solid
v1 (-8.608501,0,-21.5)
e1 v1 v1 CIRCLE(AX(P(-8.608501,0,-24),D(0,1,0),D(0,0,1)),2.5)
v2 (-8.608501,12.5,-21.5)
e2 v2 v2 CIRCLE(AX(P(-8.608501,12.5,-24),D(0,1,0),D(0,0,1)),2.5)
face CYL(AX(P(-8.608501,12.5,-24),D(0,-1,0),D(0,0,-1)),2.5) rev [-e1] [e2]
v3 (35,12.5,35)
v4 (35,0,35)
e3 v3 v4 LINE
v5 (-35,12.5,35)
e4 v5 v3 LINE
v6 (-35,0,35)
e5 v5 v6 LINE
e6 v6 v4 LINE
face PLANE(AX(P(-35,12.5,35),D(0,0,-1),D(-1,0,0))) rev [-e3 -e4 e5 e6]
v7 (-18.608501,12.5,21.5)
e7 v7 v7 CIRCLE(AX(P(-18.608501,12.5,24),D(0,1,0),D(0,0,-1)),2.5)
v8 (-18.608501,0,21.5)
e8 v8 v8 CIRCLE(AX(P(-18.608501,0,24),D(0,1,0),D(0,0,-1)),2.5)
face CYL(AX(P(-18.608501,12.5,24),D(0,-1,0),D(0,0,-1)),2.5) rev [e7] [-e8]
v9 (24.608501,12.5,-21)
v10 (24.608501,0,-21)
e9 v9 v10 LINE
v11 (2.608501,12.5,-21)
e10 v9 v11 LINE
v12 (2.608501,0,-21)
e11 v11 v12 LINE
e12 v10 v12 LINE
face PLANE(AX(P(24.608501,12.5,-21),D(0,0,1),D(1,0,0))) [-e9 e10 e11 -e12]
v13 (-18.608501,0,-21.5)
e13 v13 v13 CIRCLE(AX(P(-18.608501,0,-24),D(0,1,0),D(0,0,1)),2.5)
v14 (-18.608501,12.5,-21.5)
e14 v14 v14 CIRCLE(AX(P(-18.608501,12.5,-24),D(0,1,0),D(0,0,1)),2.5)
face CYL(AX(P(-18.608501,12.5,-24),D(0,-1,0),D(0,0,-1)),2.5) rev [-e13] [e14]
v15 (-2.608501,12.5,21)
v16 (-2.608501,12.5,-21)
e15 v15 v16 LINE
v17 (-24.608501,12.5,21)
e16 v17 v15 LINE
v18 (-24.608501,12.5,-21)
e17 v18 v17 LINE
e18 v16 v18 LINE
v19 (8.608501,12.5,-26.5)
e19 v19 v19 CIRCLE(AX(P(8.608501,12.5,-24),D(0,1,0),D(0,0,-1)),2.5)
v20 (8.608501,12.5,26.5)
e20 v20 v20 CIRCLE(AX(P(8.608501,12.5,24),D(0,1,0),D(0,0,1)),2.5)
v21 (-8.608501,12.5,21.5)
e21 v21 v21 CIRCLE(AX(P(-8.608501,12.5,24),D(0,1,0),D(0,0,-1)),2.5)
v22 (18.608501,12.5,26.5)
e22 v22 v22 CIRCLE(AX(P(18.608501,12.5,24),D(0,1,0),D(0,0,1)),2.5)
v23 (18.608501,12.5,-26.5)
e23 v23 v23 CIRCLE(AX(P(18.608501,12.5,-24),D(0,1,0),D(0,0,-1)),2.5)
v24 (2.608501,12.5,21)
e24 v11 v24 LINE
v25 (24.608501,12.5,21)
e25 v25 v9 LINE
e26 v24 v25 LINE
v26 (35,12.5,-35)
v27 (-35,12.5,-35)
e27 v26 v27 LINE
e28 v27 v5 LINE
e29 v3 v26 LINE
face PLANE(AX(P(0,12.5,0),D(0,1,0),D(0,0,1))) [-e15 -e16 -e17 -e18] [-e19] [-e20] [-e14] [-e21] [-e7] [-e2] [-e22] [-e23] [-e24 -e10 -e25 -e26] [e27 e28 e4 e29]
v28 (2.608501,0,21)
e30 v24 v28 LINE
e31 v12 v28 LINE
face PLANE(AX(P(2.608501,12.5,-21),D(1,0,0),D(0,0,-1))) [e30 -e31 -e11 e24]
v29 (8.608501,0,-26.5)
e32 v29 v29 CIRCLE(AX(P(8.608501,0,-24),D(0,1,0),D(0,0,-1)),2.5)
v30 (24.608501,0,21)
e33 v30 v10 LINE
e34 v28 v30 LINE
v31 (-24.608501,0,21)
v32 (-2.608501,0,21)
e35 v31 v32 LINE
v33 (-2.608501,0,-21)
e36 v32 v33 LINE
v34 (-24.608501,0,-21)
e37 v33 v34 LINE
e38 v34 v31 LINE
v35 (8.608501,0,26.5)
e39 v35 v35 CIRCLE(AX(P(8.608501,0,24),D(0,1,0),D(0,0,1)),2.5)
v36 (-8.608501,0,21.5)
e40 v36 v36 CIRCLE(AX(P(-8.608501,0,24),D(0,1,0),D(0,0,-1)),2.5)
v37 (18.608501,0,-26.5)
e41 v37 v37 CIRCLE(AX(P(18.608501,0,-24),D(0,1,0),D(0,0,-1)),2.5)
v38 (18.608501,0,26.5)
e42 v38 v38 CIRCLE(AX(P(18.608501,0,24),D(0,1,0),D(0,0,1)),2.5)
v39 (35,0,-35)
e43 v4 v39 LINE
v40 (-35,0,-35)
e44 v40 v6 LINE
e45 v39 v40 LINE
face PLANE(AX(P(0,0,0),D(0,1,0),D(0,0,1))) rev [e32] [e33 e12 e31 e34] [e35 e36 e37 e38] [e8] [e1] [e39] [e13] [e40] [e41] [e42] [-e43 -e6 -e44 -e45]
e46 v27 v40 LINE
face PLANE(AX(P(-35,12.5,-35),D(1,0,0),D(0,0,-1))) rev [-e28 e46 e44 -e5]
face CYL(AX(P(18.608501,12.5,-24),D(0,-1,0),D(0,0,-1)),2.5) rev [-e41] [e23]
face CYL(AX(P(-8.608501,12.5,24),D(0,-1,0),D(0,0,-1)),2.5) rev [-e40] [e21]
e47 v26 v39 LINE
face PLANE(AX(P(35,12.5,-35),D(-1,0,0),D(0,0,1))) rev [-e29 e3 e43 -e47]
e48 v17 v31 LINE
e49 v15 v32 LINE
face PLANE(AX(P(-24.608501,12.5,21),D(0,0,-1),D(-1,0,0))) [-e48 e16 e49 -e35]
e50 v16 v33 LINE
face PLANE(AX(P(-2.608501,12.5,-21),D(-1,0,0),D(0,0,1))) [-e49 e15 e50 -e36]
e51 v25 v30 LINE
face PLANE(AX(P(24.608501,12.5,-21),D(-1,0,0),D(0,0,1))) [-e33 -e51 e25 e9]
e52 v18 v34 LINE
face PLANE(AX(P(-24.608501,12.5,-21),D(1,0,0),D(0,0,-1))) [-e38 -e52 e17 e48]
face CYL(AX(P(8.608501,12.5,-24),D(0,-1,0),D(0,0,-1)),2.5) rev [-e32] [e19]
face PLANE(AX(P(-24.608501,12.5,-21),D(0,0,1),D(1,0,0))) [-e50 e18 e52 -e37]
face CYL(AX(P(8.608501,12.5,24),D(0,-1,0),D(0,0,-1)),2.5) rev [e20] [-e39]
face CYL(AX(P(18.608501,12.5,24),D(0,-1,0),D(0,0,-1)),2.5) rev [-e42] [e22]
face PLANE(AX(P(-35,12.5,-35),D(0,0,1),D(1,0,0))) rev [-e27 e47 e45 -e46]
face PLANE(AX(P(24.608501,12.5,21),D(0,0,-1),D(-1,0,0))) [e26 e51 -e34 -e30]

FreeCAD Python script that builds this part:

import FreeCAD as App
import Part
import Sketcher


def add_polygon(sketch, points):
    """Adds a closed chain of lines whose ends are joined by coincident constraints."""
    first, n = sketch.GeometryCount, len(points)
    for a, b in zip(points, points[1:] + points[:1]):
        sketch.addGeometry(Part.LineSegment(App.Vector(*a, 0), App.Vector(*b, 0)), False)
    for i in range(n):
        sketch.addConstraint(Sketcher.Constraint("Coincident", first + i, 2, first + (i + 1) % n, 1))

doc = App.newDocument("Part")
body = doc.addObject("PartDesign::Body", "Body")

sketch1 = doc.addObject("Sketcher::SketchObject", "Sketch")
body.addObject(sketch1)
sketch1.AttachmentSupport = (doc.XZ_Plane, [""])
sketch1.MapMode = "FlatFace"
add_polygon(sketch1, [(-35, -35), (-35, 35), (35, 35), (35, -35)])
sketch1.addGeometry(Part.Circle(App.Vector(-18.608501, 24, 0), App.Vector(0, 0, 1), 2.5), False)
sketch1.addGeometry(Part.Circle(App.Vector(-8.608501, 24, 0), App.Vector(0, 0, 1), 2.5), False)
sketch1.addGeometry(Part.Circle(App.Vector(8.608501, 24, 0), App.Vector(0, 0, 1), 2.5), False)
sketch1.addGeometry(Part.Circle(App.Vector(18.608501, 24, 0), App.Vector(0, 0, 1), 2.5), False)
add_polygon(sketch1, [(-2.608501, 21), (-24.608501, 21), (-24.608501, -21), (-2.608501, -21)])
sketch1.addGeometry(Part.Circle(App.Vector(-18.608501, -24, 0), App.Vector(0, 0, 1), 2.5), False)
sketch1.addGeometry(Part.Circle(App.Vector(-8.608501, -24, 0), App.Vector(0, 0, 1), 2.5), False)
add_polygon(sketch1, [(24.608501, 21), (2.608501, 21), (2.608501, -21), (24.608501, -21)])
sketch1.addGeometry(Part.Circle(App.Vector(8.608501, -24, 0), App.Vector(0, 0, 1), 2.5), False)
sketch1.addGeometry(Part.Circle(App.Vector(18.608501, -24, 0), App.Vector(0, 0, 1), 2.5), False)
sketch1.addConstraint([
    Sketcher.Constraint("Vertical", 0),
    Sketcher.Constraint("Horizontal", 1),
    Sketcher.Constraint("Vertical", 2),
    Sketcher.Constraint("Horizontal", 3),
    Sketcher.Constraint("Horizontal", 8),
    Sketcher.Constraint("Vertical", 9),
    Sketcher.Constraint("Horizontal", 10),
    Sketcher.Constraint("Vertical", 11),
    Sketcher.Constraint("Horizontal", 14),
    Sketcher.Constraint("Vertical", 15),
    Sketcher.Constraint("Horizontal", 16),
    Sketcher.Constraint("Vertical", 17),
    Sketcher.Constraint("Equal", 4, 5),
    Sketcher.Constraint("Equal", 5, 6),
    Sketcher.Constraint("Equal", 6, 7),
    Sketcher.Constraint("Equal", 7, 12),
    Sketcher.Constraint("Equal", 12, 13),
    Sketcher.Constraint("Equal", 13, 18),
    Sketcher.Constraint("Equal", 18, 19),
    Sketcher.Constraint("Symmetric", 7, 3, 12, 3, -1, 1),
    Sketcher.Constraint("Symmetric", 6, 3, 13, 3, -1, 1),
    Sketcher.Constraint("Symmetric", 5, 3, 18, 3, -1, 1),
    Sketcher.Constraint("Symmetric", 4, 3, 19, 3, -1, 1),
    Sketcher.Constraint("Symmetric", 0, 2, 2, 2, -1, 1),
    Sketcher.Constraint("Symmetric", 10, 2, 14, 2, -1, 1),
    Sketcher.Constraint("Symmetric", 8, 2, 16, 2, -1, 1),
    Sketcher.Constraint("Symmetric", 5, 3, 6, 3, -2),
    Sketcher.Constraint("Symmetric", 4, 3, 7, 3, -2),
    Sketcher.Constraint("Horizontal", 4, 3, 5, 3),
    Sketcher.Constraint("Horizontal", 11, 2, 14, 2),
    Sketcher.Constraint("Equal", 3, 0),
    Sketcher.Constraint("Diameter", 4, 5.0),
    Sketcher.Constraint("DistanceX", 1, 1, 1, 2, 70.0),
    Sketcher.Constraint("DistanceX", 8, 2, 8, 1, 22.0),
    Sketcher.Constraint("DistanceY", 9, 2, 9, 1, 42.0),
    Sketcher.Constraint("DistanceY", -1, 1, 4, 3, 24.0),
    Sketcher.Constraint("DistanceX", 4, 3, 5, 3, 10.0),
    Sketcher.Constraint("DistanceX", 8, 2, 4, 3, 6.0),
    Sketcher.Constraint("DistanceX", 5, 3, 6, 3, 17.217002),
])
pad1 = doc.addObject("PartDesign::Pad", "Pad")
body.addObject(pad1)
pad1.Profile = sketch1
pad1.Length = 12.5
pad1.Reversed = True

doc.recompute()
